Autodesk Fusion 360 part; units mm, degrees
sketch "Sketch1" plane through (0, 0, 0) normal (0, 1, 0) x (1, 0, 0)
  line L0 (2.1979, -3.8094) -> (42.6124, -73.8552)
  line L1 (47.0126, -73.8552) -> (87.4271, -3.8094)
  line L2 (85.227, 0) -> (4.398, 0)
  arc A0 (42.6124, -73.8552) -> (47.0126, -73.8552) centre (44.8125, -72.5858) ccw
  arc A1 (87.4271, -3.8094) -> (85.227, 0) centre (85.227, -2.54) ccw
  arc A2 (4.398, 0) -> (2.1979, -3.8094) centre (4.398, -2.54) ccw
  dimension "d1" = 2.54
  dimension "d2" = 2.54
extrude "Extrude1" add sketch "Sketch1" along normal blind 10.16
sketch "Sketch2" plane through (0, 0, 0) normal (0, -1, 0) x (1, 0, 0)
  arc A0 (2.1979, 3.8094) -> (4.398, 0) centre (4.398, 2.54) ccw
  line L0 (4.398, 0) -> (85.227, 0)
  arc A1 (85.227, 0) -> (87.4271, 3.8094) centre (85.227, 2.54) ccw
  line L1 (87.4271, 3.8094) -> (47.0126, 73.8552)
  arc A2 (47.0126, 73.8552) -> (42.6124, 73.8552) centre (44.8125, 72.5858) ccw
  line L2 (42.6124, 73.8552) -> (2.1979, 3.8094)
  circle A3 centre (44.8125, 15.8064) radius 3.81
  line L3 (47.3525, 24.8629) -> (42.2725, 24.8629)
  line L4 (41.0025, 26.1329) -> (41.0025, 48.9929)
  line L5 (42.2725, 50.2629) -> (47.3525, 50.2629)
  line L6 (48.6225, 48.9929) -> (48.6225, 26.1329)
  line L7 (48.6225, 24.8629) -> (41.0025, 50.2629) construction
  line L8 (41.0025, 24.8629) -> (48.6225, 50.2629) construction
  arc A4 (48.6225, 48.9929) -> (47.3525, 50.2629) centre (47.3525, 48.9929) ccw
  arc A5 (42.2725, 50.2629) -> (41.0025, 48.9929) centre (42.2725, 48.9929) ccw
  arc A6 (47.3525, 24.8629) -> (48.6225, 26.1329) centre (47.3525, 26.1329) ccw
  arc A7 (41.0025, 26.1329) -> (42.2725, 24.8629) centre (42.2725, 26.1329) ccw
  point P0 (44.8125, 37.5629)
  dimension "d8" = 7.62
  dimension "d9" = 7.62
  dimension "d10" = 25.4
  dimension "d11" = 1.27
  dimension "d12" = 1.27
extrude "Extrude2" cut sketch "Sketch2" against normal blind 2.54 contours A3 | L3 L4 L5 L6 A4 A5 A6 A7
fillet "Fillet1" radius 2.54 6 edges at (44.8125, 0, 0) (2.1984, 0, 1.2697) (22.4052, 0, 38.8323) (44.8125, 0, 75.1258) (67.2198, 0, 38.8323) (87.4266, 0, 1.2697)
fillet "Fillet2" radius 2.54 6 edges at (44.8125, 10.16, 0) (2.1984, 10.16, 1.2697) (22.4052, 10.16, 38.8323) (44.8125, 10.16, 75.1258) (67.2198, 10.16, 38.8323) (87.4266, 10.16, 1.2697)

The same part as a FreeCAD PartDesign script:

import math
import FreeCAD as App
import Part
import Sketcher

V = App.Vector
Q = App.Units.Quantity


def edges_at(feature, points):
    """Names of the edges that pass closest to the given points."""
    edges = feature.Shape.Edges
    near = lambda p: min(range(len(edges)), key=lambda i: edges[i].distToShape(Part.Vertex(*p))[0])
    return sorted({f"Edge{near(p) + 1}" for p in points})

doc = App.newDocument("Part")
body = doc.addObject("PartDesign::Body", "Body")

sketch1 = body.newObject("Sketcher::SketchObject", "Sketch")
sketch1.AttachmentSupport = (doc.getObject("XZ_Plane"), [""])
sketch1.MapMode = "FlatFace"
sketch1.addGeometry([
    Part.ArcOfCircle(Part.Circle(V(4.4, 2.5, 0), V(0, 0, 1), 2.5), math.radians(150), math.radians(270)),
    Part.LineSegment(V(2.2, 3.8, 0), V(42.6, 73.9, 0)),
    Part.ArcOfCircle(Part.Circle(V(44.8, 72.6, 0), V(0, 0, 1), 2.5), math.radians(30), math.radians(150)),
    Part.LineSegment(V(47, 73.9, 0), V(87.4, 3.8, 0)),
    Part.ArcOfCircle(Part.Circle(V(85.2, 2.5, 0), V(0, 0, 1), 2.5), math.radians(-90), math.radians(30)),
    Part.LineSegment(V(85.2, 0, 0), V(4.4, 0, 0)),
], False)
sketch1.addConstraint([
    Sketcher.Constraint("Tangent", 0, 1, 1, 1),
    Sketcher.Constraint("Tangent", 1, 2, 2, 2),
    Sketcher.Constraint("Tangent", 2, 1, 3, 1),
    Sketcher.Constraint("Tangent", 3, 2, 4, 2),
    Sketcher.Constraint("Tangent", 4, 1, 5, 1),
    Sketcher.Constraint("Tangent", 5, 2, 0, 2),
    Sketcher.Constraint("Horizontal", 5),
    Sketcher.Constraint("Equal", 0, 2),
    Sketcher.Constraint("Equal", 2, 4),
    Sketcher.Constraint("PointOnObject", 4, 1, -1),
    Sketcher.Constraint("Horizontal", 1, 2, 2, 1),
    Sketcher.Constraint("Radius", 0, Q("0.1 in")),
    Sketcher.Constraint("DistanceX", -1, 1, 3, 2, Q("3.442 in")),
    Sketcher.Constraint("Distance", 1, Q("3.1838 in")),
    Sketcher.Constraint("DistanceX", 5, 2, 5, 1, 80.829),
])
pad1 = body.newObject("PartDesign::Pad", "Pad")
pad1.Profile = sketch1
pad1.Length = Q("0.4 in")
pad1.Reversed = True

sketch2 = body.newObject("Sketcher::SketchObject", "Sketch001")
sketch2.AttachmentSupport = (doc.getObject("XZ_Plane"), [""])
sketch2.MapMode = "FlatFace"
sketch2.addGeometry([
    Part.Circle(V(44.8, 15.8, 0), V(0, 0, 1), 3.8),
    Part.LineSegment(V(42.3, 24.9, 0), V(47.4, 24.9, 0)),
    Part.ArcOfCircle(Part.Circle(V(47.4, 26.1, 0), V(0, 0, 1), 1.3), math.radians(-90), math.radians(0)),
    Part.LineSegment(V(48.6, 26.1, 0), V(48.6, 49, 0)),
    Part.ArcOfCircle(Part.Circle(V(47.4, 49, 0), V(0, 0, 1), 1.3), math.radians(0), math.radians(90)),
    Part.LineSegment(V(47.4, 50.3, 0), V(42.3, 50.3, 0)),
    Part.ArcOfCircle(Part.Circle(V(42.3, 49, 0), V(0, 0, 1), 1.3), math.radians(90), math.radians(180)),
    Part.LineSegment(V(41, 49, 0), V(41, 26.1, 0)),
    Part.ArcOfCircle(Part.Circle(V(42.3, 26.1, 0), V(0, 0, 1), 1.3), math.radians(180), math.radians(270)),
], False)
sketch2.addConstraint([
    Sketcher.Constraint("Tangent", 1, 2, 2, 1),
    Sketcher.Constraint("Tangent", 2, 2, 3, 1),
    Sketcher.Constraint("Tangent", 3, 2, 4, 1),
    Sketcher.Constraint("Tangent", 4, 2, 5, 1),
    Sketcher.Constraint("Tangent", 5, 2, 6, 1),
    Sketcher.Constraint("Tangent", 6, 2, 7, 1),
    Sketcher.Constraint("Tangent", 7, 2, 8, 1),
    Sketcher.Constraint("Tangent", 8, 2, 1, 1),
    Sketcher.Constraint("Horizontal", 1),
    Sketcher.Constraint("Vertical", 3),
    Sketcher.Constraint("Horizontal", 5),
    Sketcher.Constraint("Vertical", 7),
    Sketcher.Constraint("Equal", 2, 4),
    Sketcher.Constraint("Equal", 4, 6),
    Sketcher.Constraint("Equal", 6, 8),
    Sketcher.Constraint("Diameter", 0, Q("0.3 in")),
    Sketcher.Constraint("Radius", 2, Q("0.05 in")),
    Sketcher.Constraint("DistanceX", 6, 2, 3, 2, Q("0.3 in")),
    Sketcher.Constraint("DistanceY", 3, 1, 3, 2, Q("0.9 in")),
    Sketcher.Constraint("DistanceX", 0, 3, 2, 3, Q("0.1 in")),
    Sketcher.Constraint("DistanceY", -1, 1, 0, 3, Q("0.6223 in")),
    Sketcher.Constraint("DistanceX", -1, 1, 0, 3, 44.8125),
    Sketcher.Constraint("DistanceY", -1, 1, 2, 3, 26.133),
])
pocket1 = body.newObject("PartDesign::Pocket", "Pocket")
pocket1.Profile = sketch2
pocket1.Length = Q("0.1 in")
doc.recompute()

fillet = body.newObject("PartDesign::Fillet", "Fillet")
fillet.Base = (pocket1, edges_at(pocket1, [
    (44.812, 0, 0),
    (2.198, 0, 1.27),
    (22.405, 0, 38.832),
    (44.812, 0, 75.126),
    (67.22, 0, 38.832),
    (87.427, 0, 1.27),
]))
fillet.Radius = Q("0.1 in")
doc.recompute()

fillet2 = body.newObject("PartDesign::Fillet", "Fillet001")
fillet2.Base = (fillet, edges_at(fillet, [
    (44.812, 10.16, 0),
    (2.198, 10.16, 1.27),
    (22.405, 10.16, 38.832),
    (44.812, 10.16, 75.126),
    (67.22, 10.16, 38.832),
    (87.427, 10.16, 1.27),
]))
fillet2.Radius = Q("0.1 in")

doc.recompute()
